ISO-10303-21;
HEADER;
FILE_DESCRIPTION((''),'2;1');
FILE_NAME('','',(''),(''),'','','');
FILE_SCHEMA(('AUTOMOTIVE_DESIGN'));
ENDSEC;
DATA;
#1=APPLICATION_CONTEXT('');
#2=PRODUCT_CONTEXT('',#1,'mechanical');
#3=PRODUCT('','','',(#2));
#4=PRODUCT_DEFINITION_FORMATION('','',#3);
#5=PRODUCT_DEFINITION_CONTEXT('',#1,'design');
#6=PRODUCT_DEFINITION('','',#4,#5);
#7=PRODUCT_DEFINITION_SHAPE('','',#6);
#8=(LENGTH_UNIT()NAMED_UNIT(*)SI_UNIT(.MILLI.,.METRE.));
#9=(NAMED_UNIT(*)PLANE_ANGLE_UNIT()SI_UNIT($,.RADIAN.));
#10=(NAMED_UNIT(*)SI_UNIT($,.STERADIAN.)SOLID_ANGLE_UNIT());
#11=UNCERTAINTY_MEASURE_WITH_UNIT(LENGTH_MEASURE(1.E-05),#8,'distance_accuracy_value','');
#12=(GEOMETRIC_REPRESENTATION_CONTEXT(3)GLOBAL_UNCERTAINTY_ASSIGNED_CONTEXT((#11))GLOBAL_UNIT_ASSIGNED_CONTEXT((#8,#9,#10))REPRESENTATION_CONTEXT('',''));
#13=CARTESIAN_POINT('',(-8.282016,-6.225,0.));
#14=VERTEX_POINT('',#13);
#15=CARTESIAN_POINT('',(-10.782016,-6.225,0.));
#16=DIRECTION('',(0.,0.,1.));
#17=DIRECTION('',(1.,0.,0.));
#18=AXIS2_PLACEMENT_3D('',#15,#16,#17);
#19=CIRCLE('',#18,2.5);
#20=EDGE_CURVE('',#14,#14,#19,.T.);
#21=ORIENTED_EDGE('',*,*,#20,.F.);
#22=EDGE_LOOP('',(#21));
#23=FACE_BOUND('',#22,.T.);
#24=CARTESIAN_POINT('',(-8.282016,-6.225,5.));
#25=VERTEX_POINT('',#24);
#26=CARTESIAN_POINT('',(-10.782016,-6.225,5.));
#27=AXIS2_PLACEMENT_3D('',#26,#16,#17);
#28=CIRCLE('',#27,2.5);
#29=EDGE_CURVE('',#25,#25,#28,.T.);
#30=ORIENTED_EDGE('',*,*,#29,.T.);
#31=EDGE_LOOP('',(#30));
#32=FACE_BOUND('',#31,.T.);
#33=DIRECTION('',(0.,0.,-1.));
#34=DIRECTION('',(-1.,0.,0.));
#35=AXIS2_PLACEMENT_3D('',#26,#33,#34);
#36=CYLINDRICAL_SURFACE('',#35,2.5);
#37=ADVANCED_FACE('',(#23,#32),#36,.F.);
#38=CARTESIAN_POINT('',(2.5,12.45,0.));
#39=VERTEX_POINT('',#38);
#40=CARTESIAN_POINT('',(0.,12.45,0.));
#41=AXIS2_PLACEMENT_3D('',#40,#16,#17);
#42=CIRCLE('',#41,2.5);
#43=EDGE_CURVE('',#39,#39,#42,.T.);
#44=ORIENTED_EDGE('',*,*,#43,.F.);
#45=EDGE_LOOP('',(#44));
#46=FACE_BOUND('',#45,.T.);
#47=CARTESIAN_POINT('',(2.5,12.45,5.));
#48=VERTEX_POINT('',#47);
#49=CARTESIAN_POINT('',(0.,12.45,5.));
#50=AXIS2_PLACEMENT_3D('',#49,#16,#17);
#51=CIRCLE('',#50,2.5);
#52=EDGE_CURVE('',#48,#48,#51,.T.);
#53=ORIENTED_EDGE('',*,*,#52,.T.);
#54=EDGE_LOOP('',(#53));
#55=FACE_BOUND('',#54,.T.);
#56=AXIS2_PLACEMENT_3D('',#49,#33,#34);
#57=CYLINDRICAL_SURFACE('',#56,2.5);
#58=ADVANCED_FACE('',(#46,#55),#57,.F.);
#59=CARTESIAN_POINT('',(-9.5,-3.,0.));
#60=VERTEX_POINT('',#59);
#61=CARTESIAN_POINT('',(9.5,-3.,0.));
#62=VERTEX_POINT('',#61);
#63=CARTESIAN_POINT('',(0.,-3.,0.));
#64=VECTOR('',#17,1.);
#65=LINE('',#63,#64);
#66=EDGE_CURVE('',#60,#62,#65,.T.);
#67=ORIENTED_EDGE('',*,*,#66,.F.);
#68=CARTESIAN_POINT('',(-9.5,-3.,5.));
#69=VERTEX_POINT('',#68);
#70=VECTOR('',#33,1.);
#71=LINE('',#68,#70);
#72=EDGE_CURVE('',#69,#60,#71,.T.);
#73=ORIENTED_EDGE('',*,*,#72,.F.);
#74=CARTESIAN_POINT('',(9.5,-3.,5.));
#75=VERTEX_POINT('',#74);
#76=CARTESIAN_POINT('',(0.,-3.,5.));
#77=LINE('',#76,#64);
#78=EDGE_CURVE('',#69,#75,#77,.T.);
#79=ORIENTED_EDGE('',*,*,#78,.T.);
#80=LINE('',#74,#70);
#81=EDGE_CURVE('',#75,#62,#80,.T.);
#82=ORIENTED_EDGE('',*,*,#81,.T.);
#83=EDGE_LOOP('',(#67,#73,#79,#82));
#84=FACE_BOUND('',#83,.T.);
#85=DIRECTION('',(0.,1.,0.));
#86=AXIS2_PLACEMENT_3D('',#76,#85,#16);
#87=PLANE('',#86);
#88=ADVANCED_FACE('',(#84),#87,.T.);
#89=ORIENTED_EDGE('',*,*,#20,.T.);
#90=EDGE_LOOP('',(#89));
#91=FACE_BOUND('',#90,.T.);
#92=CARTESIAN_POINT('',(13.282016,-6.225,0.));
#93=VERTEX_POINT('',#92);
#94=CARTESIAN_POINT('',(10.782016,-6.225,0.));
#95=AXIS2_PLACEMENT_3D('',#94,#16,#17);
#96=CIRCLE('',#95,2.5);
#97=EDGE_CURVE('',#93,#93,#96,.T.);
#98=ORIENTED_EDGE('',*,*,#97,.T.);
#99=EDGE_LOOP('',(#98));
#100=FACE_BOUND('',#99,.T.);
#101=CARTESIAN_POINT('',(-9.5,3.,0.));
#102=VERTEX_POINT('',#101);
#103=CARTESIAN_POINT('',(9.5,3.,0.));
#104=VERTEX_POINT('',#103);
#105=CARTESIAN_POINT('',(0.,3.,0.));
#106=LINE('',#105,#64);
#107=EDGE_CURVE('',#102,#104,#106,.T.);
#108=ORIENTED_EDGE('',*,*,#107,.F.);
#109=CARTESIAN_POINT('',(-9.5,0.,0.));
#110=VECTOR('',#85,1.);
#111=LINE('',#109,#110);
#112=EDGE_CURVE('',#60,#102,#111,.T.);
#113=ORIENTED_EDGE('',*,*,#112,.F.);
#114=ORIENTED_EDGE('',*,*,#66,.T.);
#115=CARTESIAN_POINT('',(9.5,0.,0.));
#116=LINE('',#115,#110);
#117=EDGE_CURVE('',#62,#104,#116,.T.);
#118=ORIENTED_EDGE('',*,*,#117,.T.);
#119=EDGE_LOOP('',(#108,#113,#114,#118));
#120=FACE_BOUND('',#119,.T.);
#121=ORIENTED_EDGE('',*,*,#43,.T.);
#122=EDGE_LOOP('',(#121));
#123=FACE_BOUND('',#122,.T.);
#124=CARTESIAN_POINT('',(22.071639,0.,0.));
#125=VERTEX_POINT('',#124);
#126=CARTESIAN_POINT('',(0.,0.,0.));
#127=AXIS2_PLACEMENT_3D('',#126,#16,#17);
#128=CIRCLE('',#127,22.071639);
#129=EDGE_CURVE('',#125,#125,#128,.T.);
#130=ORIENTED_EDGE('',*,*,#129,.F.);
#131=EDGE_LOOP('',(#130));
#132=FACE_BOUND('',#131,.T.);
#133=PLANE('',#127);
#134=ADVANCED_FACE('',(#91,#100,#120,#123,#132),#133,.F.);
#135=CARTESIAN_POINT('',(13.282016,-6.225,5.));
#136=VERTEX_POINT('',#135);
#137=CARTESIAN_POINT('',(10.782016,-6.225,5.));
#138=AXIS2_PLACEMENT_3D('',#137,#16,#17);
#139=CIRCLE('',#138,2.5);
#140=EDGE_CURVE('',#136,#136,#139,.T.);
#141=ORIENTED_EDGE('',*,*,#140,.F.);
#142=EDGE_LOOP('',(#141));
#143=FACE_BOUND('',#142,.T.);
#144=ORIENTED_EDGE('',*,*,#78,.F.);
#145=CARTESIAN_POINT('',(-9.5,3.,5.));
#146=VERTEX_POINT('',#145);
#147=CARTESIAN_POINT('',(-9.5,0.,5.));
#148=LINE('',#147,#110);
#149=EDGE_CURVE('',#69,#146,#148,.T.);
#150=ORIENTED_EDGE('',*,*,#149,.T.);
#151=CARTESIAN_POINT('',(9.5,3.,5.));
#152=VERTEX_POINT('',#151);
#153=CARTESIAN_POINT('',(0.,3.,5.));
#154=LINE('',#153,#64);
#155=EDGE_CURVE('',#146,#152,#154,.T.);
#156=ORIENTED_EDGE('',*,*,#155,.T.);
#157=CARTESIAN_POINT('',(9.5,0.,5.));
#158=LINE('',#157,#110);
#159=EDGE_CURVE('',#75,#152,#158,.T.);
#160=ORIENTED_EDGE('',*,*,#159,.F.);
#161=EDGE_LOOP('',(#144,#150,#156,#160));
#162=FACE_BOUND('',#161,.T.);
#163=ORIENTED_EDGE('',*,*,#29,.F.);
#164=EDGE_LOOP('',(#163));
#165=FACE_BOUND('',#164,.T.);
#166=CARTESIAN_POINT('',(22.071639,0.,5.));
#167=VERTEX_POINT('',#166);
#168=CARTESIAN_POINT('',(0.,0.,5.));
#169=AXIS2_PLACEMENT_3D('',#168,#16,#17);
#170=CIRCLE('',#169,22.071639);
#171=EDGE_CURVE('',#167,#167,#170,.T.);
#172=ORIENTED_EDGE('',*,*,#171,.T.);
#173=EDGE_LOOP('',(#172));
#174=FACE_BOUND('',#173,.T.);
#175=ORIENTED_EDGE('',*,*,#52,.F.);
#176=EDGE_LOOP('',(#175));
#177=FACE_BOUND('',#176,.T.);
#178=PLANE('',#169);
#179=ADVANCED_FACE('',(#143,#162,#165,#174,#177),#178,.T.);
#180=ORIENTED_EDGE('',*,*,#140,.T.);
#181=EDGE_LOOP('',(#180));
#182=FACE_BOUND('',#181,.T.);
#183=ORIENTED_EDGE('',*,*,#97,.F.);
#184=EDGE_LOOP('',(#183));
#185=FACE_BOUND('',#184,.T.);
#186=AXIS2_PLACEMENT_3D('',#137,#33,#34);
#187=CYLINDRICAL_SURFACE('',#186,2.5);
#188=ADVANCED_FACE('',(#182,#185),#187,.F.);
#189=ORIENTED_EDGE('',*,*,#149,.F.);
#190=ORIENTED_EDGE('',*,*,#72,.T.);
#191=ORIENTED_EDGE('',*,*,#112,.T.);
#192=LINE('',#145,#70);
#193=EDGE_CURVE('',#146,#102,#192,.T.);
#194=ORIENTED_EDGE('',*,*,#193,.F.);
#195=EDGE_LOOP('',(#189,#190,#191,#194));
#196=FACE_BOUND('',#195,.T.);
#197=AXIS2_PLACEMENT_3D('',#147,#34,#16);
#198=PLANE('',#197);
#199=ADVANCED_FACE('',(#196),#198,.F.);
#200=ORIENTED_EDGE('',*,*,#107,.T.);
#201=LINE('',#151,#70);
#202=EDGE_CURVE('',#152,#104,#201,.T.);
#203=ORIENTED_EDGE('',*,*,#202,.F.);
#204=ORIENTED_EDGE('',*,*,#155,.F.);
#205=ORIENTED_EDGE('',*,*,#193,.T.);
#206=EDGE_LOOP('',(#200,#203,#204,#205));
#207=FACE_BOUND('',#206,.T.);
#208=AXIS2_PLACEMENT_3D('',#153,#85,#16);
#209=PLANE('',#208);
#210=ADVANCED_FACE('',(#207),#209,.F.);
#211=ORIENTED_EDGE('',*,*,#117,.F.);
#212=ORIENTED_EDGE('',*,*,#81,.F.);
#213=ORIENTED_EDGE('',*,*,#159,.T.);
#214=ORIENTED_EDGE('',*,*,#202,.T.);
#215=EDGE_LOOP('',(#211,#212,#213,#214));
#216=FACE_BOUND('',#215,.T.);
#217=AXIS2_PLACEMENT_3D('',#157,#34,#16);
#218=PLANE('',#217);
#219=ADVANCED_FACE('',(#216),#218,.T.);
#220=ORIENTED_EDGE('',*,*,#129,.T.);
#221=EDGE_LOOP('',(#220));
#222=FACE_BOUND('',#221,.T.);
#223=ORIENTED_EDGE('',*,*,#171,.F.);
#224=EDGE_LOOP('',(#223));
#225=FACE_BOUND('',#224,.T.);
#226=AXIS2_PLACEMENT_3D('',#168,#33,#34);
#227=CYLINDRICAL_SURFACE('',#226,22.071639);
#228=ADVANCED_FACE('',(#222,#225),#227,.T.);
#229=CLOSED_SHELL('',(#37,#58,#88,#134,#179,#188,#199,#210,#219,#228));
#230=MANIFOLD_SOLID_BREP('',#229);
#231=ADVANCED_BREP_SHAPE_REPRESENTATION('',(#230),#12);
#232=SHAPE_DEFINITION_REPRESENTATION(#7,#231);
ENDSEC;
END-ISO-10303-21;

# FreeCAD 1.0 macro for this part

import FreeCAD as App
import Part
import Sketcher

V = App.Vector
Q = App.Units.Quantity


def add_polygon(sketch, points):
    """Adds a closed chain of lines whose ends are joined by coincident constraints."""
    first, n = sketch.GeometryCount, len(points)
    for a, b in zip(points, points[1:] + points[:1]):
        sketch.addGeometry(Part.LineSegment(App.Vector(*a, 0), App.Vector(*b, 0)), False)
    for i in range(n):
        sketch.addConstraint(Sketcher.Constraint("Coincident", first + i, 2, first + (i + 1) % n, 1))

doc = App.newDocument("Part")
params = doc.addObject("Spreadsheet::Sheet", "Params")
for row, (alias, value) in enumerate([
    ("sketch1_diameter", "5 mm"),
    ("sketch1_width", "19 mm"),
    ("sketch1_height", "6 mm"),
    ("pad1_length", "5 mm"),
], start=1):
    params.set(f"A{row}", alias)
    params.set(f"B{row}", "=" + value)
    params.setAlias(f"B{row}", alias)

body = doc.addObject("PartDesign::Body", "Body")

# Sketch on XY plane
sketch1 = body.newObject("Sketcher::SketchObject", "Sketch")
sketch1.AttachmentSupport = (doc.getObject("XY_Plane"), [""])
sketch1.MapMode = "FlatFace"
sketch1.addGeometry(Part.Circle(V(0, 0, 0), V(0, 0, 1), 22.071639), False)  # 0
sketch1.addGeometry(Part.Circle(V(-10.782016, -6.225, 0), V(0, 0, 1), 2.5), False)  # 1
sketch1.addGeometry(Part.Circle(V(10.782016, -6.225, 0), V(0, 0, 1), 2.5), False)  # 2
add_polygon(sketch1, [(9.5, -3), (-9.5, -3), (-9.5, 3), (9.5, 3)])  # lines 3-6
sketch1.addGeometry(Part.Circle(V(0, 12.45, 0), V(0, 0, 1), 2.5), False)  # 7
sketch1.addConstraint(Sketcher.Constraint("Horizontal", 3))
sketch1.addConstraint(Sketcher.Constraint("Vertical", 4))
sketch1.addConstraint(Sketcher.Constraint("Horizontal", 5))
sketch1.addConstraint(Sketcher.Constraint("Vertical", 6))
sketch1.addConstraint(Sketcher.Constraint("Coincident", 0, 3, -1, 1))
sketch1.addConstraint(Sketcher.Constraint("Equal", 1, 2))
sketch1.addConstraint(Sketcher.Constraint("Equal", 2, 7))
sketch1.addConstraint(Sketcher.Constraint("Symmetric", 3, 2, 5, 2, -1, 1))
sketch1.addConstraint(Sketcher.Constraint("Symmetric", 1, 3, 2, 3, -2))
sketch1.addConstraint(Sketcher.Constraint("PointOnObject", 7, 3, -2))
sketch1.addConstraint(Sketcher.Constraint("Diameter", 1, Q("5 mm")))
sketch1.addConstraint(Sketcher.Constraint("DistanceX", 3, 2, 3, 1, Q("19 mm")))
sketch1.addConstraint(Sketcher.Constraint("DistanceY", 4, 1, 4, 2, Q("6 mm")))
sketch1.addConstraint(Sketcher.Constraint("Diameter", 0, Q("44.143278 mm")))
sketch1.addConstraint(Sketcher.Constraint("DistanceY", -1, 1, 7, 3, Q("12.45 mm")))
sketch1.addConstraint(Sketcher.Constraint("DistanceY", 1, 3, -1, 1, Q("6.225 mm")))
sketch1.addConstraint(Sketcher.Constraint("DistanceX", 1, 3, -1, 1, Q("10.782016 mm")))
sketch1.setExpression("Constraints[14]", "Params.sketch1_diameter")
sketch1.setExpression("Constraints[15]", "Params.sketch1_width")
sketch1.setExpression("Constraints[16]", "Params.sketch1_height")
pad1 = body.newObject("PartDesign::Pad", "Pad")
pad1.Profile = sketch1
pad1.setExpression("Length", "Params.pad1_length")

doc.recompute()
